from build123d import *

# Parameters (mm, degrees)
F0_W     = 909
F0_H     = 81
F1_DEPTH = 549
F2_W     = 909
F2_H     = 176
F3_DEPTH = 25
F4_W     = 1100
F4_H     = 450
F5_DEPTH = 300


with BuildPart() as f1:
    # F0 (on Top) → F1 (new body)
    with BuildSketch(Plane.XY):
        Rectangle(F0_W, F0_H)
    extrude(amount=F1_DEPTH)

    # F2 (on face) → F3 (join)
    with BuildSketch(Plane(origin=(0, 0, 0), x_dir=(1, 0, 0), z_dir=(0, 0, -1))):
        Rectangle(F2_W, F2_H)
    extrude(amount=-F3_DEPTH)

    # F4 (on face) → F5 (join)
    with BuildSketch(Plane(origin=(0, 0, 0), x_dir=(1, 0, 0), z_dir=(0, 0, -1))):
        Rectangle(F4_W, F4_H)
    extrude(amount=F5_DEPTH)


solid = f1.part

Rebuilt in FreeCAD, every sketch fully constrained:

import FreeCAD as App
import Part
import Sketcher


def add_polygon(sketch, points):
    """Adds a closed chain of lines whose ends are joined by coincident constraints."""
    first, n = sketch.GeometryCount, len(points)
    for a, b in zip(points, points[1:] + points[:1]):
        sketch.addGeometry(Part.LineSegment(App.Vector(*a, 0), App.Vector(*b, 0)), False)
    for i in range(n):
        sketch.addConstraint(Sketcher.Constraint("Coincident", first + i, 2, first + (i + 1) % n, 1))

doc = App.newDocument("Part")
body = doc.addObject("PartDesign::Body", "Body")

sketch1 = body.newObject("Sketcher::SketchObject", "Sketch")
sketch1.AttachmentSupport = (doc.getObject("XY_Plane"), [""])
sketch1.MapMode = "FlatFace"
add_polygon(sketch1, [(-454, 40), (-454, -40), (454, -40), (454, 40)])
sketch1.addConstraint(Sketcher.Constraint("Vertical", 0))
sketch1.addConstraint(Sketcher.Constraint("Horizontal", 1))
sketch1.addConstraint(Sketcher.Constraint("Vertical", 2))
sketch1.addConstraint(Sketcher.Constraint("Horizontal", 3))
sketch1.addConstraint(Sketcher.Constraint("Symmetric", 0, 2, 2, 2, -1, 1))
sketch1.addConstraint(Sketcher.Constraint("DistanceX", 1, 1, 1, 2, 909.0))
sketch1.addConstraint(Sketcher.Constraint("DistanceY", 0, 2, 0, 1, 81.0))
pad1 = body.newObject("PartDesign::Pad", "Pad")
pad1.Profile = sketch1
pad1.Length = 549

sketch2 = body.newObject("Sketcher::SketchObject", "Sketch001")
sketch2.AttachmentSupport = (doc.getObject("XY_Plane"), [""])
sketch2.MapMode = "FlatFace"
add_polygon(sketch2, [(-454, -88), (-454, 88), (454, 88), (454, -88)])
sketch2.addConstraint(Sketcher.Constraint("Vertical", 0))
sketch2.addConstraint(Sketcher.Constraint("Horizontal", 1))
sketch2.addConstraint(Sketcher.Constraint("Vertical", 2))
sketch2.addConstraint(Sketcher.Constraint("Horizontal", 3))
sketch2.addConstraint(Sketcher.Constraint("Symmetric", 0, 2, 2, 2, -1, 1))
sketch2.addConstraint(Sketcher.Constraint("DistanceX", 1, 1, 1, 2, 909.0))
sketch2.addConstraint(Sketcher.Constraint("DistanceY", 0, 1, 0, 2, 176.0))
pad2 = body.newObject("PartDesign::Pad", "Pad001")
pad2.Profile = sketch2
pad2.Length = 25

sketch3 = body.newObject("Sketcher::SketchObject", "Sketch002")
sketch3.AttachmentSupport = (doc.getObject("XY_Plane"), [""])
sketch3.MapMode = "FlatFace"
add_polygon(sketch3, [(-550, -225), (-550, 225), (550, 225), (550, -225)])
sketch3.addConstraint(Sketcher.Constraint("Vertical", 0))
sketch3.addConstraint(Sketcher.Constraint("Horizontal", 1))
sketch3.addConstraint(Sketcher.Constraint("Vertical", 2))
sketch3.addConstraint(Sketcher.Constraint("Horizontal", 3))
sketch3.addConstraint(Sketcher.Constraint("Symmetric", 0, 2, 2, 2, -1, 1))
sketch3.addConstraint(Sketcher.Constraint("DistanceX", 1, 1, 1, 2, 1100.0))
sketch3.addConstraint(Sketcher.Constraint("DistanceY", 0, 1, 0, 2, 450.0))
pad3 = body.newObject("PartDesign::Pad", "Pad002")
pad3.Profile = sketch3
pad3.Length = 300
pad3.Reversed = True

doc.recompute()
